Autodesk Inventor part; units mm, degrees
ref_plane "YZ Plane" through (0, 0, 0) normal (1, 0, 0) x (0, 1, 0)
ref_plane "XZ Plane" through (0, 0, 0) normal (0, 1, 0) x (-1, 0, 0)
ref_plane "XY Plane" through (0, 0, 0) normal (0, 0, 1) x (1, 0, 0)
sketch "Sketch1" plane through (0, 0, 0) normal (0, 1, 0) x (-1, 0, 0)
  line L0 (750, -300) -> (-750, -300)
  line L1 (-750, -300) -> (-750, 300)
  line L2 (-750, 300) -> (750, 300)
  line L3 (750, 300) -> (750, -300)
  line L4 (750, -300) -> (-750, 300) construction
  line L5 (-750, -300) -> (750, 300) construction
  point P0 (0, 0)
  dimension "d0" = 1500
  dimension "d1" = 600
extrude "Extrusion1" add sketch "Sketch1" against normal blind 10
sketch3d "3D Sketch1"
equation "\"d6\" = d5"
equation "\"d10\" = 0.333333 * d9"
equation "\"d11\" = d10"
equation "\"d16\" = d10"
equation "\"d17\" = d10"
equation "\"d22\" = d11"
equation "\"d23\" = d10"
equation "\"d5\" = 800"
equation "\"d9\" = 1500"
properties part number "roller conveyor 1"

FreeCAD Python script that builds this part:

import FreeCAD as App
import Part
import Sketcher
from FreeCAD import Vector


def add_polygon(sketch, points):
    """Adds a closed chain of lines whose ends are joined by coincident constraints."""
    first, n = sketch.GeometryCount, len(points)
    for a, b in zip(points, points[1:] + points[:1]):
        sketch.addGeometry(Part.LineSegment(App.Vector(*a, 0), App.Vector(*b, 0)), False)
    for i in range(n):
        sketch.addConstraint(Sketcher.Constraint("Coincident", first + i, 2, first + (i + 1) % n, 1))

doc = App.newDocument("Part")
body = doc.addObject("PartDesign::Body", "Body")

# Sketch on XZ plane
sketch1 = body.newObject("Sketcher::SketchObject", "Sketch")
sketch1.AttachmentSupport = (doc.getObject("XZ_Plane"), [""])
sketch1.MapMode = "FlatFace"
add_polygon(sketch1, [(750, -300), (-750, -300), (-750, 300), (750, 300)])  # lines 0-3
sketch1.addConstraint([
    Sketcher.Constraint("Horizontal", 0),
    Sketcher.Constraint("Vertical", 1),
    Sketcher.Constraint("Horizontal", 2),
    Sketcher.Constraint("Vertical", 3),
    Sketcher.Constraint("Symmetric", 0, 2, 2, 2, -1, 1),
    Sketcher.Constraint("DistanceX", 0, 2, 0, 1, 1500.0),
    Sketcher.Constraint("DistanceY", 1, 1, 1, 2, 600.0),
])
pad1 = body.newObject("PartDesign::Pad", "Pad")
pad1.Profile = sketch1
pad1.Length = 10

doc.recompute()
